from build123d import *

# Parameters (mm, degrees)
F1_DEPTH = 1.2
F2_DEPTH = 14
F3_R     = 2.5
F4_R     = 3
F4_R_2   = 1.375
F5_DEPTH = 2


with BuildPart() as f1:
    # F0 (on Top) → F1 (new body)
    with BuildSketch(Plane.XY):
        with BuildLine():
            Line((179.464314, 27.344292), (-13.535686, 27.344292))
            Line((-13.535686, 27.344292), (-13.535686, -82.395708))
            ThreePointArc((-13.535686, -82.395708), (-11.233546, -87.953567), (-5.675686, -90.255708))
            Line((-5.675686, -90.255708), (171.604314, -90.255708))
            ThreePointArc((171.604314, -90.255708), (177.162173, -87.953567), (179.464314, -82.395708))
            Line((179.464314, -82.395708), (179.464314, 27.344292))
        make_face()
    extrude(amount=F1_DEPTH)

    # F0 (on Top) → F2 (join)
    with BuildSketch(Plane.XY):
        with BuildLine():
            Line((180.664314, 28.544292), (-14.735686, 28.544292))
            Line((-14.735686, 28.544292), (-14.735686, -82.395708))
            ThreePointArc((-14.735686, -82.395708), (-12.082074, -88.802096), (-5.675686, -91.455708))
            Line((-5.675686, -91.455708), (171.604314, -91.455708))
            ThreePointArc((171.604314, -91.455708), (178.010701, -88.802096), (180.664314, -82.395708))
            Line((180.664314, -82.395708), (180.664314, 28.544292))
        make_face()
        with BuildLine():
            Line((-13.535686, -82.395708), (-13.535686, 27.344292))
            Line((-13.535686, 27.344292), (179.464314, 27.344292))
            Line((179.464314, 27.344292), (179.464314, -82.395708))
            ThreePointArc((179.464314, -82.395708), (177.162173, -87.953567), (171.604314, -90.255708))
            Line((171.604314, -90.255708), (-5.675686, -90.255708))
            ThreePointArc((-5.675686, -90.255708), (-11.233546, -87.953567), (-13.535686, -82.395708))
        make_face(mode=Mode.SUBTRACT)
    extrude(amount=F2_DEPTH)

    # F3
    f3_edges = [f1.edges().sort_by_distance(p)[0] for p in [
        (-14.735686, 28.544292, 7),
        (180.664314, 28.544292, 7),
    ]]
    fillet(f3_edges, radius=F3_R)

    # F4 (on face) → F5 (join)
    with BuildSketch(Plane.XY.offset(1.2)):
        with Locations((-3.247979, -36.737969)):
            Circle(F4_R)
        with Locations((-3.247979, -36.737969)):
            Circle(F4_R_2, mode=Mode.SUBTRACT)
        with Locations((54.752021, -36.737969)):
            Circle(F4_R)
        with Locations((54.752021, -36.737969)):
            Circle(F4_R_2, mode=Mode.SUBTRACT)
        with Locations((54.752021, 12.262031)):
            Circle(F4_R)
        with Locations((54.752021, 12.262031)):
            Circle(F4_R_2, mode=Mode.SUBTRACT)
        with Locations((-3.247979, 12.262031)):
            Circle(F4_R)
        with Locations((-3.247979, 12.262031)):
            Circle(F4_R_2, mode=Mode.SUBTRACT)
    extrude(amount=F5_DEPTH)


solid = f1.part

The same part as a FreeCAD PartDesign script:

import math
import FreeCAD as App
import Part
import Sketcher

V = App.Vector
Q = App.Units.Quantity


def edges_at(feature, points):
    """Names of the edges that pass closest to the given points."""
    edges = feature.Shape.Edges
    near = lambda p: min(range(len(edges)), key=lambda i: edges[i].distToShape(Part.Vertex(*p))[0])
    return sorted({f"Edge{near(p) + 1}" for p in points})

doc = App.newDocument("Part")
body = doc.addObject("PartDesign::Body", "Body")

# Sketch on XY plane
sketch1 = doc.addObject("Sketcher::SketchObject", "Sketch")
body.addObject(sketch1)
sketch1.AttachmentSupport = (doc.XY_Plane, [""])
sketch1.MapMode = "FlatFace"
sketch1.addGeometry([
    Part.LineSegment(V(179, 27, 0), V(-14, 27, 0)),  # 0
    Part.LineSegment(V(-14, 27, 0), V(-14, -82, 0)),  # 1
    Part.ArcOfCircle(Part.Circle(V(-6, -82, 0), V(0, 0, 1), 8), math.radians(180), math.radians(270)),  # 2
    Part.LineSegment(V(-6, -90, 0), V(172, -90, 0)),  # 3
    Part.ArcOfCircle(Part.Circle(V(172, -82, 0), V(0, 0, 1), 8), math.radians(-90), math.radians(0)),  # 4
    Part.LineSegment(V(179, -82, 0), V(179, 27, 0)),  # 5
], False)
sketch1.addConstraint([
    Sketcher.Constraint("Coincident", 0, 2, 1, 1),
    Sketcher.Constraint("Tangent", 1, 2, 2, 1),
    Sketcher.Constraint("Tangent", 2, 2, 3, 1),
    Sketcher.Constraint("Tangent", 3, 2, 4, 1),
    Sketcher.Constraint("Tangent", 4, 2, 5, 1),
    Sketcher.Constraint("Coincident", 5, 2, 0, 1),
    Sketcher.Constraint("Horizontal", 0),
    Sketcher.Constraint("Vertical", 1),
    Sketcher.Constraint("Horizontal", 3),
    Sketcher.Constraint("Vertical", 5),
    Sketcher.Constraint("Equal", 2, 4),
    Sketcher.Constraint("DistanceX", 0, 2, 0, 1, Q("193 mm")),
    Sketcher.Constraint("Radius", 2, Q("7.859999 mm")),
    Sketcher.Constraint("DistanceY", 1, 2, 1, 1, Q("109.74 mm")),
    Sketcher.Constraint("DistanceY", 2, 3, -1, 1, Q("82.395709 mm")),
    Sketcher.Constraint("DistanceX", 2, 3, -1, 1, Q("5.675687 mm")),
])
pad1 = doc.addObject("PartDesign::Pad", "Pad")
body.addObject(pad1)
pad1.Profile = sketch1
pad1.Length = 1.2

# Sketch on XY plane
sketch2 = doc.addObject("Sketcher::SketchObject", "Sketch001")
body.addObject(sketch2)
sketch2.AttachmentSupport = (doc.XY_Plane, [""])
sketch2.MapMode = "FlatFace"
sketch2.addGeometry([
    Part.LineSegment(V(181, 29, 0), V(-15, 29, 0)),  # 0
    Part.LineSegment(V(-15, 29, 0), V(-15, -82, 0)),  # 1
    Part.ArcOfCircle(Part.Circle(V(-6, -82, 0), V(0, 0, 1), 9), math.radians(180), math.radians(270)),  # 2
    Part.LineSegment(V(-6, -91, 0), V(172, -91, 0)),  # 3
    Part.ArcOfCircle(Part.Circle(V(172, -82, 0), V(0, 0, 1), 9), math.radians(-90), math.radians(0)),  # 4
    Part.LineSegment(V(181, -82, 0), V(181, 29, 0)),  # 5
    Part.ArcOfCircle(Part.Circle(V(-6, -82, 0), V(0, 0, 1), 8), math.radians(180), math.radians(270)),  # 6
    Part.LineSegment(V(-14, -82, 0), V(-14, 27, 0)),  # 7
    Part.LineSegment(V(-14, 27, 0), V(179, 27, 0)),  # 8
    Part.LineSegment(V(179, 27, 0), V(179, -82, 0)),  # 9
    Part.ArcOfCircle(Part.Circle(V(172, -82, 0), V(0, 0, 1), 8), math.radians(-90), math.radians(0)),  # 10
    Part.LineSegment(V(172, -90, 0), V(-6, -90, 0)),  # 11
], False)
sketch2.addConstraint([
    Sketcher.Constraint("Coincident", 0, 2, 1, 1),
    Sketcher.Constraint("Tangent", 1, 2, 2, 1),
    Sketcher.Constraint("Tangent", 2, 2, 3, 1),
    Sketcher.Constraint("Tangent", 3, 2, 4, 1),
    Sketcher.Constraint("Tangent", 4, 2, 5, 1),
    Sketcher.Constraint("Coincident", 5, 2, 0, 1),
    Sketcher.Constraint("Tangent", 6, 1, 7, 1),
    Sketcher.Constraint("Coincident", 7, 2, 8, 1),
    Sketcher.Constraint("Coincident", 8, 2, 9, 1),
    Sketcher.Constraint("Tangent", 9, 2, 10, 2),
    Sketcher.Constraint("Tangent", 10, 1, 11, 1),
    Sketcher.Constraint("Tangent", 11, 2, 6, 2),
    Sketcher.Constraint("Horizontal", 0),
    Sketcher.Constraint("Vertical", 1),
    Sketcher.Constraint("Horizontal", 3),
    Sketcher.Constraint("Vertical", 5),
    Sketcher.Constraint("Vertical", 7),
    Sketcher.Constraint("Horizontal", 8),
    Sketcher.Constraint("Vertical", 9),
    Sketcher.Constraint("Horizontal", 11),
    Sketcher.Constraint("Coincident", 6, 3, 2, 3),
    Sketcher.Constraint("Coincident", 10, 3, 4, 3),
    Sketcher.Constraint("Equal", 2, 4),
    Sketcher.Constraint("DistanceX", 8, 1, 8, 2, Q("193 mm")),
    Sketcher.Constraint("Radius", 2, Q("9.059998 mm")),
    Sketcher.Constraint("Radius", 6, Q("7.859999 mm")),
    Sketcher.Constraint("DistanceY", 2, 2, 0, 2, Q("120 mm")),
    Sketcher.Constraint("DistanceY", 7, 1, 7, 2, Q("109.74 mm")),
    Sketcher.Constraint("DistanceY", 2, 3, -1, 1, Q("82.39571 mm")),
    Sketcher.Constraint("DistanceX", 2, 3, -1, 1, Q("5.675688 mm")),
])
pad2 = doc.addObject("PartDesign::Pad", "Pad001")
body.addObject(pad2)
pad2.Profile = sketch2
pad2.Length = 14
doc.recompute()

fillet = doc.addObject("PartDesign::Fillet", "Fillet")
body.addObject(fillet)
fillet.Base = (pad2, edges_at(pad2, [(-14.736, 28.544, 7), (180.664, 28.544, 7)]))
fillet.Radius = 2.5

# Sketch on XY plane
sketch3 = doc.addObject("Sketcher::SketchObject", "Sketch002")
body.addObject(sketch3)
sketch3.AttachmentSupport = (doc.XY_Plane, [""])
sketch3.MapMode = "FlatFace"
sketch3.AttachmentOffset = App.Placement(V(0, 0, 1.2), App.Rotation())
sketch3.addGeometry([
    Part.Circle(V(-3.2, -36.7, 0), V(0, 0, 1), 3),  # 0
    Part.Circle(V(-3.2, -36.7, 0), V(0, 0, 1), 1.4),  # 1
    Part.Circle(V(54.8, -36.7, 0), V(0, 0, 1), 3),  # 2
    Part.Circle(V(54.8, -36.7, 0), V(0, 0, 1), 1.4),  # 3
    Part.Circle(V(54.8, 12.3, 0), V(0, 0, 1), 3),  # 4
    Part.Circle(V(54.8, 12.3, 0), V(0, 0, 1), 1.4),  # 5
    Part.Circle(V(-3.2, 12.3, 0), V(0, 0, 1), 3),  # 6
    Part.Circle(V(-3.2, 12.3, 0), V(0, 0, 1), 1.4),  # 7
], False)
sketch3.addConstraint([
    Sketcher.Constraint("Coincident", 1, 3, 0, 3),
    Sketcher.Constraint("Coincident", 3, 3, 2, 3),
    Sketcher.Constraint("Coincident", 5, 3, 4, 3),
    Sketcher.Constraint("Coincident", 7, 3, 6, 3),
    Sketcher.Constraint("Equal", 0, 2),
    Sketcher.Constraint("Equal", 1, 3),
    Sketcher.Constraint("Equal", 2, 4),
    Sketcher.Constraint("Equal", 3, 5),
    Sketcher.Constraint("Equal", 4, 6),
    Sketcher.Constraint("Equal", 5, 7),
    Sketcher.Constraint("Horizontal", 1, 3, 2, 3),
    Sketcher.Constraint("Horizontal", 5, 3, 6, 3),
    Sketcher.Constraint("Vertical", 3, 3, 4, 3),
    Sketcher.Constraint("Vertical", 1, 3, 6, 3),
    Sketcher.Constraint("Diameter", 0, Q("6 mm")),
    Sketcher.Constraint("Diameter", 1, Q("2.75 mm")),
    Sketcher.Constraint("DistanceX", 0, 3, 2, 3, Q("58 mm")),
    Sketcher.Constraint("DistanceY", 2, 3, 4, 3, Q("49 mm")),
    Sketcher.Constraint("DistanceX", 0, 3, -1, 1, Q("3.247979 mm")),
    Sketcher.Constraint("DistanceY", 0, 3, -1, 1, Q("36.737969 mm")),
])
pad3 = doc.addObject("PartDesign::Pad", "Pad002")
body.addObject(pad3)
pad3.Profile = sketch3
pad3.Length = 2

doc.recompute()
